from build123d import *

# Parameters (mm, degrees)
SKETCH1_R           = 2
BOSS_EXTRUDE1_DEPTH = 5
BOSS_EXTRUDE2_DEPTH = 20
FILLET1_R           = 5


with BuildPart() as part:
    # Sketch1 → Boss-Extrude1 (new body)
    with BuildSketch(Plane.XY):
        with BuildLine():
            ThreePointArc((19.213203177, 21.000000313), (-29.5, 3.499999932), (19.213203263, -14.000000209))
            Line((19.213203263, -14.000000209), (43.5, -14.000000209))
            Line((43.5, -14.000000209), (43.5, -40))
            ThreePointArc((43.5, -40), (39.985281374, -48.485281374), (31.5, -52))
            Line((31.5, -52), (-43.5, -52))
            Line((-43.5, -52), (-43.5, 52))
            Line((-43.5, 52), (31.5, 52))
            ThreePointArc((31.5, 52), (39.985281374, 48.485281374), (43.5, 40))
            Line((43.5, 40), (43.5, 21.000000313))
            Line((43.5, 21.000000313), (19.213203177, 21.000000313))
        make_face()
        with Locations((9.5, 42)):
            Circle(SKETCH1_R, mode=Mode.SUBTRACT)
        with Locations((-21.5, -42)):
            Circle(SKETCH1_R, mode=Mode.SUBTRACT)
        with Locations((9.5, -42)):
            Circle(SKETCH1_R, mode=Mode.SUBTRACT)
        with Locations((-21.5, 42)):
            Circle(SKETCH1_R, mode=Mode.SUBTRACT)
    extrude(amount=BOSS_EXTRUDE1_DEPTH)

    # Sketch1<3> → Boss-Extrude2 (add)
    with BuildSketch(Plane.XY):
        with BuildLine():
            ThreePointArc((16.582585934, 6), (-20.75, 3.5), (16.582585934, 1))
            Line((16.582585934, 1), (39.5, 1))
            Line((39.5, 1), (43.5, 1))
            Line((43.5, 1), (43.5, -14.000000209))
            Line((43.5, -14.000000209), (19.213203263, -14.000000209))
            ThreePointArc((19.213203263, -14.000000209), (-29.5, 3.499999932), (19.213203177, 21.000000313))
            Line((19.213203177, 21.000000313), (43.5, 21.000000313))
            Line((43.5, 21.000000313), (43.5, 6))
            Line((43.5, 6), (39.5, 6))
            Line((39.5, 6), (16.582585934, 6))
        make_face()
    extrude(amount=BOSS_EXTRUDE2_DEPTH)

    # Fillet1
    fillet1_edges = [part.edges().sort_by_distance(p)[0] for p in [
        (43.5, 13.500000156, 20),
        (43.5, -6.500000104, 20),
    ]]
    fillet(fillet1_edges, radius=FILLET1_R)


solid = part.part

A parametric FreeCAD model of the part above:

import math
import FreeCAD as App
import Part
import Sketcher

V = App.Vector
Q = App.Units.Quantity


def edges_at(feature, points):
    """Names of the edges that pass closest to the given points."""
    edges = feature.Shape.Edges
    near = lambda p: min(range(len(edges)), key=lambda i: edges[i].distToShape(Part.Vertex(*p))[0])
    return sorted({f"Edge{near(p) + 1}" for p in points})

doc = App.newDocument("Part")
body = doc.addObject("PartDesign::Body", "Body")

# Sketch on XY plane
sketch1 = body.newObject("Sketcher::SketchObject", "Sketch")
sketch1.AttachmentSupport = (doc.getObject("XY_Plane"), [""])
sketch1.MapMode = "FlatFace"
sketch1.addGeometry([
    Part.ArcOfCircle(Part.Circle(V(-2, 3.5, 0), V(0, 0, 1), 27.5), math.radians(40), math.radians(320)),  # 0
    Part.LineSegment(V(19.2, 21, 0), V(43.5, 21, 0)),  # 1
    Part.LineSegment(V(43.5, 21, 0), V(43.5, 40, 0)),  # 2
    Part.ArcOfCircle(Part.Circle(V(31.5, 40, 0), V(0, 0, 1), 12), math.radians(0), math.radians(90)),  # 3
    Part.LineSegment(V(31.5, 52, 0), V(-43.5, 52, 0)),  # 4
    Part.LineSegment(V(-43.5, 52, 0), V(-43.5, -52, 0)),  # 5
    Part.LineSegment(V(-43.5, -52, 0), V(31.5, -52, 0)),  # 6
    Part.ArcOfCircle(Part.Circle(V(31.5, -40, 0), V(0, 0, 1), 12), math.radians(-90), math.radians(0)),  # 7
    Part.LineSegment(V(43.5, -40, 0), V(43.5, -14, 0)),  # 8
    Part.LineSegment(V(43.5, -14, 0), V(19.2, -14, 0)),  # 9
    Part.Circle(V(9.5, -42, 0), V(0, 0, 1), 2),  # 10
    Part.Circle(V(-21.5, -42, 0), V(0, 0, 1), 2),  # 11
    Part.Circle(V(9.5, 42, 0), V(0, 0, 1), 2),  # 12
    Part.Circle(V(-21.5, 42, 0), V(0, 0, 1), 2),  # 13
], False)
sketch1.addConstraint([
    Sketcher.Constraint("Coincident", 0, 1, 1, 1),
    Sketcher.Constraint("Coincident", 1, 2, 2, 1),
    Sketcher.Constraint("Tangent", 2, 2, 3, 1),
    Sketcher.Constraint("Tangent", 3, 2, 4, 1),
    Sketcher.Constraint("Coincident", 4, 2, 5, 1),
    Sketcher.Constraint("Coincident", 5, 2, 6, 1),
    Sketcher.Constraint("Tangent", 6, 2, 7, 1),
    Sketcher.Constraint("Tangent", 7, 2, 8, 1),
    Sketcher.Constraint("Coincident", 8, 2, 9, 1),
    Sketcher.Constraint("Coincident", 9, 2, 0, 2),
    Sketcher.Constraint("Horizontal", 1),
    Sketcher.Constraint("Vertical", 2),
    Sketcher.Constraint("Horizontal", 4),
    Sketcher.Constraint("Vertical", 5),
    Sketcher.Constraint("Horizontal", 6),
    Sketcher.Constraint("Vertical", 8),
    Sketcher.Constraint("Horizontal", 9),
    Sketcher.Constraint("Equal", 3, 7),
    Sketcher.Constraint("Equal", 10, 11),
    Sketcher.Constraint("Equal", 11, 12),
    Sketcher.Constraint("Equal", 12, 13),
    Sketcher.Constraint("Symmetric", 3, 3, 7, 3, -1),
    Sketcher.Constraint("Symmetric", 10, 3, 12, 3, -1),
    Sketcher.Constraint("Symmetric", 11, 3, 13, 3, -1),
    Sketcher.Constraint("Horizontal", 10, 3, 11, 3),
    Sketcher.Constraint("Vertical", 0, 1, 9, 2),
    Sketcher.Constraint("Diameter", 10, Q("4 mm")),
    Sketcher.Constraint("Radius", 3, Q("12 mm")),
    Sketcher.Constraint("Radius", 0, Q("27.5 mm")),
    Sketcher.Constraint("DistanceX", 4, 2, 4, 1, Q("75 mm")),
    Sketcher.Constraint("DistanceY", 2, 1, 2, 2, Q("19 mm")),
    Sketcher.Constraint("DistanceY", 5, 2, 5, 1, Q("104 mm")),
    Sketcher.Constraint("DistanceY", 8, 1, 8, 2, Q("26 mm")),
    Sketcher.Constraint("DistanceX", 0, 3, -1, 1, Q("2 mm")),
    Sketcher.Constraint("DistanceY", 10, 3, -1, 1, Q("42 mm")),
    Sketcher.Constraint("DistanceX", 10, 3, 7, 3, Q("22 mm")),
    Sketcher.Constraint("DistanceX", 11, 3, 10, 3, Q("31 mm")),
    Sketcher.Constraint("DistanceX", -1, 1, 3, 3, Q("31.5 mm")),
])
pad1 = body.newObject("PartDesign::Pad", "Pad")
pad1.Profile = sketch1
pad1.Length = 5

# Sketch on XY plane
sketch2 = body.newObject("Sketcher::SketchObject", "Sketch001")
sketch2.AttachmentSupport = (doc.getObject("XY_Plane"), [""])
sketch2.MapMode = "FlatFace"
sketch2.addGeometry([
    Part.ArcOfCircle(Part.Circle(V(-2, 4, 0), V(0, 0, 1), 19), math.radians(8), math.radians(352)),  # 0
    Part.LineSegment(V(17, 6, 0), V(44, 6, 0)),  # 1
    Part.LineSegment(V(44, 6, 0), V(44, 21, 0)),  # 2
    Part.LineSegment(V(44, 21, 0), V(19, 21, 0)),  # 3
    Part.ArcOfCircle(Part.Circle(V(-2, 4, 0), V(0, 0, 1), 28), math.radians(40), math.radians(320)),  # 4
    Part.LineSegment(V(19, -14, 0), V(44, -14, 0)),  # 5
    Part.LineSegment(V(44, -14, 0), V(44, 1, 0)),  # 6
    Part.LineSegment(V(44, 1, 0), V(17, 1, 0)),  # 7
], False)
sketch2.addConstraint([
    Sketcher.Constraint("Coincident", 0, 1, 1, 1),
    Sketcher.Constraint("Coincident", 1, 2, 2, 1),
    Sketcher.Constraint("Coincident", 2, 2, 3, 1),
    Sketcher.Constraint("Coincident", 3, 2, 4, 1),
    Sketcher.Constraint("Coincident", 4, 2, 5, 1),
    Sketcher.Constraint("Coincident", 5, 2, 6, 1),
    Sketcher.Constraint("Coincident", 6, 2, 7, 1),
    Sketcher.Constraint("Coincident", 7, 2, 0, 2),
    Sketcher.Constraint("Horizontal", 1),
    Sketcher.Constraint("Vertical", 2),
    Sketcher.Constraint("Horizontal", 3),
    Sketcher.Constraint("Horizontal", 5),
    Sketcher.Constraint("Vertical", 6),
    Sketcher.Constraint("Horizontal", 7),
    Sketcher.Constraint("Coincident", 4, 3, 0, 3),
    Sketcher.Constraint("Vertical", 3, 2, 4, 2),
    Sketcher.Constraint("Vertical", 2, 2, 5, 2),
    Sketcher.Constraint("Vertical", 0, 1, 7, 2),
    Sketcher.Constraint("Radius", 4, Q("27.5 mm")),
    Sketcher.Constraint("DistanceY", 2, 1, 2, 2, Q("15 mm")),
    Sketcher.Constraint("Radius", 0, Q("18.75 mm")),
    Sketcher.Constraint("DistanceX", 0, 3, -1, 1, Q("2 mm")),
    Sketcher.Constraint("DistanceY", -1, 1, 0, 1, Q("6 mm")),
    Sketcher.Constraint("DistanceY", 4, 2, -1, 1, Q("14 mm")),
    Sketcher.Constraint("DistanceX", -1, 1, 1, 2, Q("43.5 mm")),
])
pad2 = body.newObject("PartDesign::Pad", "Pad001")
pad2.Profile = sketch2
pad2.Length = 20
doc.recompute()

fillet = body.newObject("PartDesign::Fillet", "Fillet")
fillet.Base = (pad2, edges_at(pad2, [(43.5, 13.5, 20), (43.5, -6.5, 20)]))
fillet.Radius = 5

doc.recompute()
